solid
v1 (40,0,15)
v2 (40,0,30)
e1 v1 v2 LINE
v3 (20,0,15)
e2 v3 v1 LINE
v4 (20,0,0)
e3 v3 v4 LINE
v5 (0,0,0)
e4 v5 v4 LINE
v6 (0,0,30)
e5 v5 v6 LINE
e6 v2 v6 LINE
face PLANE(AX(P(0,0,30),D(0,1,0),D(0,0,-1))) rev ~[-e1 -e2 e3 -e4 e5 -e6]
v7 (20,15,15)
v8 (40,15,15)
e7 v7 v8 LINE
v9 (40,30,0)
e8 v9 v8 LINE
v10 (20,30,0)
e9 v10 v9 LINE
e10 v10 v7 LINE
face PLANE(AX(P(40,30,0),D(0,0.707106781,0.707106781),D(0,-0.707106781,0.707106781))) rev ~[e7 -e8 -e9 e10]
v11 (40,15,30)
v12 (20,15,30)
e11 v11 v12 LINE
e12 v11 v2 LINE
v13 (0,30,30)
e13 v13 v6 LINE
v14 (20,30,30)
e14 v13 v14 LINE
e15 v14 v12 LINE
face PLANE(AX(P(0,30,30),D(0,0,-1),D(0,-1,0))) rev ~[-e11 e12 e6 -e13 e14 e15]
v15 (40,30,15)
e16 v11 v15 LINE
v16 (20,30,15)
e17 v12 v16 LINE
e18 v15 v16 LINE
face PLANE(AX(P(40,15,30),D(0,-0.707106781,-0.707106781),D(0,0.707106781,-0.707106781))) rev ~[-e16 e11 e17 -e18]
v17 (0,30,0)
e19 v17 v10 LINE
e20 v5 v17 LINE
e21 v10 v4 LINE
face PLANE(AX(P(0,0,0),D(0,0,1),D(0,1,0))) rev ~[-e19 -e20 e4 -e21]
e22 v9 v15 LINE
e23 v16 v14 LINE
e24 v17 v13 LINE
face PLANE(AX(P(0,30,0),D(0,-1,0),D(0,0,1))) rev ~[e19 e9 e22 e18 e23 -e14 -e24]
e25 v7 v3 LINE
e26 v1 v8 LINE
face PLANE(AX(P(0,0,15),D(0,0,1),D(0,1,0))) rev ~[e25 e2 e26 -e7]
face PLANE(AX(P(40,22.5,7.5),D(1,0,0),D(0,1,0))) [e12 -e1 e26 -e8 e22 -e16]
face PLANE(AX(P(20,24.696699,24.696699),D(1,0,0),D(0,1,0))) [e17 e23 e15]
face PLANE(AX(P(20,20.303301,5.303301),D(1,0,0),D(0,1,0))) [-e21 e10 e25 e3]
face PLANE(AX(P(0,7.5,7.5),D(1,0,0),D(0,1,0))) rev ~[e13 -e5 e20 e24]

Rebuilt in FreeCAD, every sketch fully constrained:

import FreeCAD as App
import Part
import Sketcher
from FreeCAD import Vector

doc = App.newDocument("Part")
body = doc.addObject("PartDesign::Body", "Body")

# Sketch on YZ plane
sketch1 = body.newObject("Sketcher::SketchObject", "Sketch")
sketch1.AttachmentSupport = (doc.getObject("YZ_Plane"), [""])
sketch1.MapMode = "FlatFace"
sketch1.addGeometry([
    Part.LineSegment(Vector(0, 0, 0), Vector(30, 0, 0)),
    Part.LineSegment(Vector(30, 0, 0), Vector(30, 30, 0)),
    Part.LineSegment(Vector(30, 30, 0), Vector(0, 30, 0)),
    Part.LineSegment(Vector(0, 30, 0), Vector(0, 0, 0)),
], False)
sketch1.addConstraint([
    Sketcher.Constraint("Coincident", 0, 2, 1, 1),
    Sketcher.Constraint("Coincident", 1, 2, 2, 1),
    Sketcher.Constraint("Coincident", 2, 2, 3, 1),
    Sketcher.Constraint("Coincident", 3, 2, 0, 1),
    Sketcher.Constraint("Horizontal", 0),
    Sketcher.Constraint("Vertical", 1),
    Sketcher.Constraint("Horizontal", 2),
    Sketcher.Constraint("Vertical", 3),
    Sketcher.Constraint("Coincident", 3, 2, -1, 1),
    Sketcher.Constraint("Equal", 2, 1),
    Sketcher.Constraint("DistanceX", 0, 1, 0, 2, 30.0),
])
pad1 = body.newObject("PartDesign::Pad", "Pad")
pad1.Profile = sketch1
pad1.Length = 20

# Sketch on YZ plane
sketch2 = body.newObject("Sketcher::SketchObject", "Sketch001")
sketch2.AttachmentSupport = (doc.getObject("YZ_Plane"), [""])
sketch2.MapMode = "FlatFace"
sketch2.addGeometry([
    Part.LineSegment(Vector(15, 0, 0), Vector(30, 0, 0)),  # 0
    Part.LineSegment(Vector(30, 0, 0), Vector(30, 30, 0)),  # 1
    Part.LineSegment(Vector(30, 30, 0), Vector(0, 30, 0)),  # 2
    Part.LineSegment(Vector(0, 30, 0), Vector(0, 15, 0)),  # 3
    Part.LineSegment(Vector(0, 15, 0), Vector(15, 15, 0)),  # 4
    Part.LineSegment(Vector(15, 15, 0), Vector(15, 0, 0)),  # 5
], False)
sketch2.addConstraint([
    Sketcher.Constraint("Coincident", 0, 2, 1, 1),
    Sketcher.Constraint("Coincident", 1, 2, 2, 1),
    Sketcher.Constraint("Coincident", 2, 2, 3, 1),
    Sketcher.Constraint("Coincident", 3, 2, 4, 1),
    Sketcher.Constraint("Coincident", 4, 2, 5, 1),
    Sketcher.Constraint("Coincident", 5, 2, 0, 1),
    Sketcher.Constraint("Horizontal", 0),
    Sketcher.Constraint("Vertical", 1),
    Sketcher.Constraint("Horizontal", 2),
    Sketcher.Constraint("Vertical", 3),
    Sketcher.Constraint("Horizontal", 4),
    Sketcher.Constraint("Vertical", 5),
    Sketcher.Constraint("PointOnObject", 0, 2, -1),
    Sketcher.Constraint("PointOnObject", 2, 2, -2),
    Sketcher.Constraint("Equal", 0, 4),
    Sketcher.Constraint("Equal", 2, 1),
    Sketcher.Constraint("Equal", 4, 3),
    Sketcher.Constraint("DistanceX", 0, 1, 0, 2, 15.0),
])
pad2 = body.newObject("PartDesign::Pad", "Pad001")
pad2.Profile = sketch2
pad2.Length = 40

# Sketch on YZ plane
sketch3 = body.newObject("Sketcher::SketchObject", "Sketch002")
sketch3.AttachmentSupport = (doc.getObject("YZ_Plane"), [""])
sketch3.MapMode = "FlatFace"
sketch3.AttachmentOffset = App.Placement(Vector(0, 0, 40), App.Rotation())
sketch3.addGeometry([
    Part.LineSegment(Vector(30, 30, 0), Vector(15, 30, 0)),
    Part.LineSegment(Vector(15, 30, 0), Vector(30, 15, 0)),
    Part.LineSegment(Vector(30, 15, 0), Vector(30, 30, 0)),
], False)
sketch3.addConstraint([
    Sketcher.Constraint("Coincident", 0, 2, 1, 1),
    Sketcher.Constraint("Coincident", 1, 2, 2, 1),
    Sketcher.Constraint("Coincident", 2, 2, 0, 1),
    Sketcher.Constraint("Horizontal", 0),
    Sketcher.Constraint("Vertical", 2),
    Sketcher.Constraint("Equal", 0, 2),
    Sketcher.Constraint("DistanceX", 0, 2, 0, 1, 15.0),
    Sketcher.Constraint("DistanceX", -1, 1, 0, 2, 15.0),
    Sketcher.Constraint("DistanceY", -1, 1, 0, 2, 30.0),
])
pocket1 = body.newObject("PartDesign::Pocket", "Pocket")
pocket1.Profile = sketch3
pocket1.Length = 20

# Sketch on YZ plane
sketch4 = body.newObject("Sketcher::SketchObject", "Sketch003")
sketch4.AttachmentSupport = (doc.getObject("YZ_Plane"), [""])
sketch4.MapMode = "FlatFace"
sketch4.AttachmentOffset = App.Placement(Vector(0, 0, 40), App.Rotation())
sketch4.addGeometry([
    Part.LineSegment(Vector(30, 0, 0), Vector(15, 15, 0)),
    Part.LineSegment(Vector(15, 15, 0), Vector(15, 0, 0)),
    Part.LineSegment(Vector(15, 0, 0), Vector(30, 0, 0)),
], False)
sketch4.addConstraint([
    Sketcher.Constraint("Coincident", 0, 2, 1, 1),
    Sketcher.Constraint("Coincident", 1, 2, 2, 1),
    Sketcher.Constraint("Coincident", 2, 2, 0, 1),
    Sketcher.Constraint("Vertical", 1),
    Sketcher.Constraint("Horizontal", 2),
    Sketcher.Constraint("PointOnObject", 1, 2, -1),
    Sketcher.Constraint("Equal", 2, 1),
    Sketcher.Constraint("DistanceX", 2, 1, 2, 2, 15.0),
    Sketcher.Constraint("DistanceX", -1, 1, 0, 2, 15.0),
])
pocket2 = body.newObject("PartDesign::Pocket", "Pocket001")
pocket2.Profile = sketch4
pocket2.Length = 20

doc.recompute()
